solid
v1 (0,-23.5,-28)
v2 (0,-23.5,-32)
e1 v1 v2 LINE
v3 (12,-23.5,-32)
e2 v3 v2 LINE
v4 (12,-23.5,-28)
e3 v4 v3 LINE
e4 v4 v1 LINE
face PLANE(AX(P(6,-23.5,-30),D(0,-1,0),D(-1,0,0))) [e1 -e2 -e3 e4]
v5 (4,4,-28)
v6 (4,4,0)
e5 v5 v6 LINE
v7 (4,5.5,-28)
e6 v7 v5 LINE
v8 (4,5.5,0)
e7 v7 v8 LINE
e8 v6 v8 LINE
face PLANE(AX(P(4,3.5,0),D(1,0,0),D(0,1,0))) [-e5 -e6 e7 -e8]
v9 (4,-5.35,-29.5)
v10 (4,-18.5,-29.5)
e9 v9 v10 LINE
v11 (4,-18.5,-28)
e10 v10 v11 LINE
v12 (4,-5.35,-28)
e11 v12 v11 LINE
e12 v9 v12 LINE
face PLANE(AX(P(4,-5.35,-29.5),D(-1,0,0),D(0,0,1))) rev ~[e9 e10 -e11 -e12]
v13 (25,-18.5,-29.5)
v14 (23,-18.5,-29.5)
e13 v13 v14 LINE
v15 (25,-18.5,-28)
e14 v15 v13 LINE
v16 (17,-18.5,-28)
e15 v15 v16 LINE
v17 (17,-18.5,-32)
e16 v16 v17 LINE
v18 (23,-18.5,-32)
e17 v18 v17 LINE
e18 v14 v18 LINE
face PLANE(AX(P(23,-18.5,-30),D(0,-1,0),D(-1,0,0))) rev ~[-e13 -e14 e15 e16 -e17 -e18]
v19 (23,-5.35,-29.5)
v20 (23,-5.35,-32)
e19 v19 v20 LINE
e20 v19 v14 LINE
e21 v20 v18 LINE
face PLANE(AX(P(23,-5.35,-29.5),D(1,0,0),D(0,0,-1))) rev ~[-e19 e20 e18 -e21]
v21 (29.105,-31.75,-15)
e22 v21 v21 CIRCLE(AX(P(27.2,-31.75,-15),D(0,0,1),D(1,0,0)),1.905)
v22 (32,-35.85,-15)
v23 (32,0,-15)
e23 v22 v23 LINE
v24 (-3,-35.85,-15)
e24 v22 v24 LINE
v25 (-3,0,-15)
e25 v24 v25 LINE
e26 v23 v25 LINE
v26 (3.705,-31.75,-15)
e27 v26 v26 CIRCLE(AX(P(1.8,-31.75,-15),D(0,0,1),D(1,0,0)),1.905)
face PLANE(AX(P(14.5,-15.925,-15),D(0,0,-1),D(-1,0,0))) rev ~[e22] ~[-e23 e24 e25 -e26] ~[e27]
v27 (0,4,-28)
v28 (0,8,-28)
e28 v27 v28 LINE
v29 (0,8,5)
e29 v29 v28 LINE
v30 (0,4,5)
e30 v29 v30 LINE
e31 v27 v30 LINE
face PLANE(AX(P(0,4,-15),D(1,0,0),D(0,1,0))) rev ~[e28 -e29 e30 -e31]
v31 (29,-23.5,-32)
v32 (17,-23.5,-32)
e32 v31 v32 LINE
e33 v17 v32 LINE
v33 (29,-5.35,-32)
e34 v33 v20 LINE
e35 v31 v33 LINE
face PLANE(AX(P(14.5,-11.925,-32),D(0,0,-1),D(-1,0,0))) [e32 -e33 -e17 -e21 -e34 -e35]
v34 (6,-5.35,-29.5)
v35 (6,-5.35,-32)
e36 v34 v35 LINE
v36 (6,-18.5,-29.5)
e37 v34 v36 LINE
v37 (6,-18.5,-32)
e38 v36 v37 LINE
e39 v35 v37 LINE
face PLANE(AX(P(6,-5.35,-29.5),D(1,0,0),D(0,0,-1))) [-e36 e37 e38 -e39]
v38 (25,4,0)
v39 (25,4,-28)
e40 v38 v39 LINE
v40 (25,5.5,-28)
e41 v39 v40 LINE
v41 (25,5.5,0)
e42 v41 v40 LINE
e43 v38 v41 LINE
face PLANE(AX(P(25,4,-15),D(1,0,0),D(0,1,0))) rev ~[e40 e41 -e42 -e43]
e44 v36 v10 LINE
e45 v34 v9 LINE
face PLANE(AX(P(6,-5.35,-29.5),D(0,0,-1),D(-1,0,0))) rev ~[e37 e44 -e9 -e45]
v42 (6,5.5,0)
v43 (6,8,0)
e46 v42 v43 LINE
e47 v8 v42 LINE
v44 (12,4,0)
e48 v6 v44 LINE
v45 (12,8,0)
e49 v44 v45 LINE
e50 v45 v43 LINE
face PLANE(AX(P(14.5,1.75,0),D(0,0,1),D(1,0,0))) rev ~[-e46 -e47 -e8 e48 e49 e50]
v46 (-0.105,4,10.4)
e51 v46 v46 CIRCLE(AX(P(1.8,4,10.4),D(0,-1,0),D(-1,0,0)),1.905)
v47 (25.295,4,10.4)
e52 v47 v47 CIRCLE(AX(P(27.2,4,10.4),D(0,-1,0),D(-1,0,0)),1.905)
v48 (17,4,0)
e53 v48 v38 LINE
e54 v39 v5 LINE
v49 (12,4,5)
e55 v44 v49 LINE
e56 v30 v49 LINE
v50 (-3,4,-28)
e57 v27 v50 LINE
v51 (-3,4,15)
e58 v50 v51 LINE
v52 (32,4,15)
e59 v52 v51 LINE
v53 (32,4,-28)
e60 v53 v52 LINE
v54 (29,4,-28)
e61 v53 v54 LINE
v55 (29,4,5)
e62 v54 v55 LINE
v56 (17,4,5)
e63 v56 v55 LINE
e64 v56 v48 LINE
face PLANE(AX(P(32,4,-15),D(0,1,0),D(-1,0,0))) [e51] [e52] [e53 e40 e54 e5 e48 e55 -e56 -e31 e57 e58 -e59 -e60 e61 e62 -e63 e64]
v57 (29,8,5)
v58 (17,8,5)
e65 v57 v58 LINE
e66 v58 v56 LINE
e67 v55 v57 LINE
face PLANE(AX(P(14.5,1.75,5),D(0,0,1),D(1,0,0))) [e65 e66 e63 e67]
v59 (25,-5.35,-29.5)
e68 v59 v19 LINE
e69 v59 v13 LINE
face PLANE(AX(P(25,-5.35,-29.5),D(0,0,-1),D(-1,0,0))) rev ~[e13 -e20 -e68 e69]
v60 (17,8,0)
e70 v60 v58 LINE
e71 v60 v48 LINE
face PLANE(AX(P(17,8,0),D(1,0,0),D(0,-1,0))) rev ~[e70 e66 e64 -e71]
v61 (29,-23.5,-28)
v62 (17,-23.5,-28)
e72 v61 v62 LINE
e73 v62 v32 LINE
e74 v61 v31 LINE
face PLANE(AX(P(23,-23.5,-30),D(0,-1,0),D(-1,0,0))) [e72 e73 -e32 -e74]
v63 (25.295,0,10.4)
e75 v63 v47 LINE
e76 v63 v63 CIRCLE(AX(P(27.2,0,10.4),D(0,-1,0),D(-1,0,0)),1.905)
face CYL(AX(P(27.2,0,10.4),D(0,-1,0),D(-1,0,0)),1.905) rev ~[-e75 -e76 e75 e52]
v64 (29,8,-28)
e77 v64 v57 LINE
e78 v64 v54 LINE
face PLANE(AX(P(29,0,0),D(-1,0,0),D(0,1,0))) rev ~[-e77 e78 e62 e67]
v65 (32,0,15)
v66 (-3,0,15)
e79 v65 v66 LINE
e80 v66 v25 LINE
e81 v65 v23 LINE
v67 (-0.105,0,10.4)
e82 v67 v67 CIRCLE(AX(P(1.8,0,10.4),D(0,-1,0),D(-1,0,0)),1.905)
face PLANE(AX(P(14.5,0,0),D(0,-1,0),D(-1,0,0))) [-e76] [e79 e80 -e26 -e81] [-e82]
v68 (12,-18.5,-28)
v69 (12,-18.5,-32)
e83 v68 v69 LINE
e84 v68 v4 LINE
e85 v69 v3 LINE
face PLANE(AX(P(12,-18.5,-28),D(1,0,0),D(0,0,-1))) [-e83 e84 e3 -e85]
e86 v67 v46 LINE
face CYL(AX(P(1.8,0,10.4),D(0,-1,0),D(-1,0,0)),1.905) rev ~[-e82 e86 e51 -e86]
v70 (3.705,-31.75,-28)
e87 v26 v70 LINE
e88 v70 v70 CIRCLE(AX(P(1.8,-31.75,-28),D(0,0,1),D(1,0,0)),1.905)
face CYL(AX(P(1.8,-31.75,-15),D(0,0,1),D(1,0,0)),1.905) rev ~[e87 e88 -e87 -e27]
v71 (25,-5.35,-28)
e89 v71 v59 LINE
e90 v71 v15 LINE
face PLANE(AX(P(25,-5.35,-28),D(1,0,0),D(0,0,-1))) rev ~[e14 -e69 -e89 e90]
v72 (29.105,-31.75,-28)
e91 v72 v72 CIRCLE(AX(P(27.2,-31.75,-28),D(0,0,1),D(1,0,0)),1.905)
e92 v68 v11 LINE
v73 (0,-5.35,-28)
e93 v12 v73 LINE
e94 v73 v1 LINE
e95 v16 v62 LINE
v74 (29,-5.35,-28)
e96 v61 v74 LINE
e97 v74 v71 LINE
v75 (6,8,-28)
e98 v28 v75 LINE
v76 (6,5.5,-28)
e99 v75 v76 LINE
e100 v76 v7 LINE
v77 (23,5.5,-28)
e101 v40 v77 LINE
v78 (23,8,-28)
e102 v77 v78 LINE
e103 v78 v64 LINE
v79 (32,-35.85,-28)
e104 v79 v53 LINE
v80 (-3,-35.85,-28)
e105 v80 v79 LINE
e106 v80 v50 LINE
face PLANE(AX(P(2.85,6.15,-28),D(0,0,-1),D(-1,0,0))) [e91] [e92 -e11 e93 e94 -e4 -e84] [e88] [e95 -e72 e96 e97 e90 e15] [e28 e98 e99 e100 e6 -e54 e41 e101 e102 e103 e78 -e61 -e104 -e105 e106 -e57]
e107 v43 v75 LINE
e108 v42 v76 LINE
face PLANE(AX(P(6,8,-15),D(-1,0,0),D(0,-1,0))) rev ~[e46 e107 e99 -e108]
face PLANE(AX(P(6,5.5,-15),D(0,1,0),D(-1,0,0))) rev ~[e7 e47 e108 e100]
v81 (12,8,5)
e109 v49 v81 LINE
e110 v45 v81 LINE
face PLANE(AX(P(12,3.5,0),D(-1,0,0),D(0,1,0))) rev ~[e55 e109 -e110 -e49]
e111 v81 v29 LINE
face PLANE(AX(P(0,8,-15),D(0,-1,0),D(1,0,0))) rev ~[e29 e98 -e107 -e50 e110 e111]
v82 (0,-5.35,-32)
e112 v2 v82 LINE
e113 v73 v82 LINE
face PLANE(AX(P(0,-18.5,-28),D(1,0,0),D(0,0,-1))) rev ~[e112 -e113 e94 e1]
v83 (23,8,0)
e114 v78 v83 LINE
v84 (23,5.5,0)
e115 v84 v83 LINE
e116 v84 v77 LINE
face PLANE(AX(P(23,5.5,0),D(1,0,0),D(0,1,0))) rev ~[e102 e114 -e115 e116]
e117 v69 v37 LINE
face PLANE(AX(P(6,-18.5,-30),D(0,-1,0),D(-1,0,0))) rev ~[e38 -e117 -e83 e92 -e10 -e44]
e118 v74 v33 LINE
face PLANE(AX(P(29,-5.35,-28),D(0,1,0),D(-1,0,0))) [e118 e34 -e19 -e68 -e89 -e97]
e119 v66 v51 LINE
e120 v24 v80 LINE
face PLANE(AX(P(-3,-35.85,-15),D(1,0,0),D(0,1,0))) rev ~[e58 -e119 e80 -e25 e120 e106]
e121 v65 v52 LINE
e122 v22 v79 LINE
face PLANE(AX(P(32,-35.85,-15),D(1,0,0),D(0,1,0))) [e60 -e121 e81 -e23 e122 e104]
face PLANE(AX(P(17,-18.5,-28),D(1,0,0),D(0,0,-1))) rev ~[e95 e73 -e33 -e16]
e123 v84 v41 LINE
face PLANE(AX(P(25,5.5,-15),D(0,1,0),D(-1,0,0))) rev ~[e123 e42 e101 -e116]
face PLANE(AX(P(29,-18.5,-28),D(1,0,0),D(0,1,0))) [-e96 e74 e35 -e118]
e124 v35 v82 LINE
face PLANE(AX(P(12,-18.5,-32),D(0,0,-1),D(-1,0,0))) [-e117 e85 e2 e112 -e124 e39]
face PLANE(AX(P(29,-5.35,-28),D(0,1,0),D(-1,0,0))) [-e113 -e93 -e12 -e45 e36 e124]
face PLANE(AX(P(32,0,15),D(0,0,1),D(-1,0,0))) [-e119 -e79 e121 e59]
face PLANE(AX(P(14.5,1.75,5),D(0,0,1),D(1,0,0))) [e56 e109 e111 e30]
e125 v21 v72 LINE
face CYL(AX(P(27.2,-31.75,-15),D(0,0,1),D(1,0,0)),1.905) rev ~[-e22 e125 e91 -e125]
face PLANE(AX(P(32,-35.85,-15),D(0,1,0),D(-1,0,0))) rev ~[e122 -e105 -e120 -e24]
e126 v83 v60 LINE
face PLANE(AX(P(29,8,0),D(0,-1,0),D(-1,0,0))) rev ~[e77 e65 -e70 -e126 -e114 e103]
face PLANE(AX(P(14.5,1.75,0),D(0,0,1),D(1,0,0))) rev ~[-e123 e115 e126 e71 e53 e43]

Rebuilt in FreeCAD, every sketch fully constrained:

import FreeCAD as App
import Part
import Sketcher

doc = App.newDocument("Part")
body = doc.addObject("PartDesign::Body", "Body")

sketch1 = doc.addObject("Sketcher::SketchObject", "Sketch")
body.addObject(sketch1)
sketch1.AttachmentSupport = (doc.XZ_Plane, [""])
sketch1.MapMode = "FlatFace"
sketch1.addGeometry(Part.LineSegment(App.Vector(0, -15, 0), App.Vector(0, 0, 0)), False)
sketch1.addGeometry(Part.LineSegment(App.Vector(0, 0, 0), App.Vector(29, 0, 0)), False)
sketch1.addGeometry(Part.LineSegment(App.Vector(29, 0, 0), App.Vector(29, -15, 0)), False)
sketch1.addGeometry(Part.LineSegment(App.Vector(29, -15, 0), App.Vector(0, -15, 0)), False)
sketch1.addConstraint(Sketcher.Constraint("Coincident", 0, 2, 1, 1))
sketch1.addConstraint(Sketcher.Constraint("Coincident", 1, 2, 2, 1))
sketch1.addConstraint(Sketcher.Constraint("Coincident", 2, 2, 3, 1))
sketch1.addConstraint(Sketcher.Constraint("Coincident", 3, 2, 0, 1))
sketch1.addConstraint(Sketcher.Constraint("Vertical", 0))
sketch1.addConstraint(Sketcher.Constraint("Horizontal", 1))
sketch1.addConstraint(Sketcher.Constraint("Vertical", 2))
sketch1.addConstraint(Sketcher.Constraint("Horizontal", 3))
sketch1.addConstraint(Sketcher.Constraint("Coincident", 0, 2, -1, 1))
sketch1.addConstraint(Sketcher.Constraint("DistanceX", 1, 1, 1, 2, 29.0))
sketch1.addConstraint(Sketcher.Constraint("DistanceY", 0, 1, 0, 2, 15.0))
pad1 = doc.addObject("PartDesign::Pad", "Pad")
body.addObject(pad1)
pad1.Profile = sketch1
pad1.Length = 8
pad1.Reversed = True

sketch2 = doc.addObject("Sketcher::SketchObject", "Sketch001")
body.addObject(sketch2)
sketch2.AttachmentSupport = (doc.XY_Plane, [""])
sketch2.MapMode = "FlatFace"
sketch2.addGeometry(Part.LineSegment(App.Vector(6, 8, 0), App.Vector(6, 5.5, 0)), False)
sketch2.addGeometry(Part.LineSegment(App.Vector(6, 5.5, 0), App.Vector(4, 5.5, 0)), False)
sketch2.addGeometry(Part.LineSegment(App.Vector(4, 5.5, 0), App.Vector(4, 3.5, 0)), False)
sketch2.addGeometry(Part.LineSegment(App.Vector(4, 3.5, 0), App.Vector(25, 3.5, 0)), False)
sketch2.addGeometry(Part.LineSegment(App.Vector(25, 3.5, 0), App.Vector(25, 5.5, 0)), False)
sketch2.addGeometry(Part.LineSegment(App.Vector(25, 5.5, 0), App.Vector(23, 5.5, 0)), False)
sketch2.addGeometry(Part.LineSegment(App.Vector(23, 5.5, 0), App.Vector(23, 8, 0)), False)
sketch2.addGeometry(Part.LineSegment(App.Vector(23, 8, 0), App.Vector(6, 8, 0)), False)
sketch2.addConstraint(Sketcher.Constraint("Coincident", 0, 2, 1, 1))
sketch2.addConstraint(Sketcher.Constraint("Coincident", 1, 2, 2, 1))
sketch2.addConstraint(Sketcher.Constraint("Coincident", 2, 2, 3, 1))
sketch2.addConstraint(Sketcher.Constraint("Coincident", 3, 2, 4, 1))
sketch2.addConstraint(Sketcher.Constraint("Coincident", 4, 2, 5, 1))
sketch2.addConstraint(Sketcher.Constraint("Coincident", 5, 2, 6, 1))
sketch2.addConstraint(Sketcher.Constraint("Coincident", 6, 2, 7, 1))
sketch2.addConstraint(Sketcher.Constraint("Coincident", 7, 2, 0, 1))
sketch2.addConstraint(Sketcher.Constraint("Vertical", 0))
sketch2.addConstraint(Sketcher.Constraint("Horizontal", 1))
sketch2.addConstraint(Sketcher.Constraint("Vertical", 2))
sketch2.addConstraint(Sketcher.Constraint("Horizontal", 3))
sketch2.addConstraint(Sketcher.Constraint("Vertical", 4))
sketch2.addConstraint(Sketcher.Constraint("Horizontal", 5))
sketch2.addConstraint(Sketcher.Constraint("Vertical", 6))
sketch2.addConstraint(Sketcher.Constraint("Horizontal", 7))
sketch2.addConstraint(Sketcher.Constraint("Horizontal", 1, 2, 4, 2))
sketch2.addConstraint(Sketcher.Constraint("Equal", 1, 5))
sketch2.addConstraint(Sketcher.Constraint("Equal", 5, 2))
sketch2.addConstraint(Sketcher.Constraint("DistanceX", 1, 2, 1, 1, 2.0))
sketch2.addConstraint(Sketcher.Constraint("DistanceX", 3, 1, 3, 2, 21.0))
sketch2.addConstraint(Sketcher.Constraint("DistanceY", 0, 2, 0, 1, 2.5))
sketch2.addConstraint(Sketcher.Constraint("DistanceX", -1, 1, 0, 2, 6.0))
sketch2.addConstraint(Sketcher.Constraint("DistanceY", -1, 1, 6, 2, 8.0))
pocket1 = doc.addObject("PartDesign::Pocket", "Pocket")
body.addObject(pocket1)
pocket1.Profile = sketch2
pocket1.Type = "ThroughAll"
pocket1.Midplane = True

sketch3 = doc.addObject("Sketcher::SketchObject", "Sketch002")
body.addObject(sketch3)
sketch3.AttachmentSupport = (doc.XY_Plane, [""])
sketch3.MapMode = "FlatFace"
sketch3.addGeometry(Part.LineSegment(App.Vector(29, 0, 0), App.Vector(29, 8, 0)), False)
sketch3.addGeometry(Part.LineSegment(App.Vector(29, 8, 0), App.Vector(17, 8, 0)), False)
sketch3.addGeometry(Part.LineSegment(App.Vector(17, 8, 0), App.Vector(17, 3.5, 0)), False)
sketch3.addGeometry(Part.LineSegment(App.Vector(17, 3.5, 0), App.Vector(12, 3.5, 0)), False)
sketch3.addGeometry(Part.LineSegment(App.Vector(12, 3.5, 0), App.Vector(12, 8, 0)), False)
sketch3.addGeometry(Part.LineSegment(App.Vector(12, 8, 0), App.Vector(0, 8, 0)), False)
sketch3.addGeometry(Part.LineSegment(App.Vector(0, 8, 0), App.Vector(0, 0, 0)), False)
sketch3.addGeometry(Part.LineSegment(App.Vector(0, 0, 0), App.Vector(29, 0, 0)), False)
sketch3.addConstraint(Sketcher.Constraint("Coincident", 0, 2, 1, 1))
sketch3.addConstraint(Sketcher.Constraint("Coincident", 1, 2, 2, 1))
sketch3.addConstraint(Sketcher.Constraint("Coincident", 2, 2, 3, 1))
sketch3.addConstraint(Sketcher.Constraint("Coincident", 3, 2, 4, 1))
sketch3.addConstraint(Sketcher.Constraint("Coincident", 4, 2, 5, 1))
sketch3.addConstraint(Sketcher.Constraint("Coincident", 5, 2, 6, 1))
sketch3.addConstraint(Sketcher.Constraint("Coincident", 6, 2, 7, 1))
sketch3.addConstraint(Sketcher.Constraint("Coincident", 7, 2, 0, 1))
sketch3.addConstraint(Sketcher.Constraint("Vertical", 0))
sketch3.addConstraint(Sketcher.Constraint("Horizontal", 1))
sketch3.addConstraint(Sketcher.Constraint("Vertical", 2))
sketch3.addConstraint(Sketcher.Constraint("Horizontal", 3))
sketch3.addConstraint(Sketcher.Constraint("Vertical", 4))
sketch3.addConstraint(Sketcher.Constraint("Horizontal", 5))
sketch3.addConstraint(Sketcher.Constraint("Vertical", 6))
sketch3.addConstraint(Sketcher.Constraint("Horizontal", 7))
sketch3.addConstraint(Sketcher.Constraint("Coincident", 6, 2, -1, 1))
sketch3.addConstraint(Sketcher.Constraint("Horizontal", 1, 2, 4, 2))
sketch3.addConstraint(Sketcher.Constraint("Equal", 1, 5))
sketch3.addConstraint(Sketcher.Constraint("DistanceX", 1, 2, 1, 1, 12.0))
sketch3.addConstraint(Sketcher.Constraint("DistanceX", 3, 2, 3, 1, 5.0))
sketch3.addConstraint(Sketcher.Constraint("DistanceY", 0, 1, 0, 2, 8.0))
sketch3.addConstraint(Sketcher.Constraint("DistanceY", 2, 2, 2, 1, 4.5))
pad2 = doc.addObject("PartDesign::Pad", "Pad001")
body.addObject(pad2)
pad2.Profile = sketch3
pad2.Length = 5

sketch4 = doc.addObject("Sketcher::SketchObject", "Sketch003")
body.addObject(sketch4)
sketch4.AttachmentSupport = (doc.XZ_Plane, [""])
sketch4.MapMode = "FlatFace"
sketch4.addGeometry(Part.LineSegment(App.Vector(32, -15, 0), App.Vector(32, 15, 0)), False)
sketch4.addGeometry(Part.LineSegment(App.Vector(32, 15, 0), App.Vector(-3, 15, 0)), False)
sketch4.addGeometry(Part.LineSegment(App.Vector(-3, 15, 0), App.Vector(-3, -15, 0)), False)
sketch4.addGeometry(Part.LineSegment(App.Vector(-3, -15, 0), App.Vector(32, -15, 0)), False)
sketch4.addConstraint(Sketcher.Constraint("Coincident", 0, 2, 1, 1))
sketch4.addConstraint(Sketcher.Constraint("Coincident", 1, 2, 2, 1))
sketch4.addConstraint(Sketcher.Constraint("Coincident", 2, 2, 3, 1))
sketch4.addConstraint(Sketcher.Constraint("Coincident", 3, 2, 0, 1))
sketch4.addConstraint(Sketcher.Constraint("Vertical", 0))
sketch4.addConstraint(Sketcher.Constraint("Horizontal", 1))
sketch4.addConstraint(Sketcher.Constraint("Vertical", 2))
sketch4.addConstraint(Sketcher.Constraint("Horizontal", 3))
sketch4.addConstraint(Sketcher.Constraint("DistanceX", 1, 2, 1, 1, 35.0))
sketch4.addConstraint(Sketcher.Constraint("DistanceY", 0, 1, 0, 2, 30.0))
sketch4.addConstraint(Sketcher.Constraint("DistanceX", -1, 1, 0, 2, 32.0))
sketch4.addConstraint(Sketcher.Constraint("DistanceY", -1, 1, 0, 2, 15.0))
pad3 = doc.addObject("PartDesign::Pad", "Pad002")
body.addObject(pad3)
pad3.Profile = sketch4
pad3.Length = 4
pad3.Reversed = True

sketch5 = doc.addObject("Sketcher::SketchObject", "Sketch004")
body.addObject(sketch5)
sketch5.AttachmentSupport = (doc.XZ_Plane, [""])
sketch5.MapMode = "FlatFace"
sketch5.addGeometry(Part.Circle(App.Vector(27.2, 10.4, 0), App.Vector(0, 0, 1), 1.9), False)
sketch5.addGeometry(Part.Circle(App.Vector(1.8, 10.4, 0), App.Vector(0, 0, 1), 1.9), False)
sketch5.addConstraint(Sketcher.Constraint("Equal", 0, 1))
sketch5.addConstraint(Sketcher.Constraint("Horizontal", 0, 3, 1, 3))
sketch5.addConstraint(Sketcher.Constraint("Diameter", 0, 3.81))
sketch5.addConstraint(Sketcher.Constraint("DistanceX", -1, 1, 0, 3, 27.2))
sketch5.addConstraint(Sketcher.Constraint("DistanceY", -1, 1, 0, 3, 10.4))
sketch5.addConstraint(Sketcher.Constraint("DistanceX", -1, 1, 1, 3, 1.8))
pocket2 = doc.addObject("PartDesign::Pocket", "Pocket001")
body.addObject(pocket2)
pocket2.Profile = sketch5
pocket2.Type = "ThroughAll"
pocket2.Midplane = True

sketch6 = doc.addObject("Sketcher::SketchObject", "Sketch005")
body.addObject(sketch6)
sketch6.AttachmentSupport = (doc.XY_Plane, [""])
sketch6.MapMode = "FlatFace"
sketch6.AttachmentOffset = App.Placement(App.Vector(0, 0, -15), App.Rotation())
sketch6.addGeometry(Part.LineSegment(App.Vector(32, 4, 0), App.Vector(32, -36, 0)), False)
sketch6.addGeometry(Part.LineSegment(App.Vector(32, -36, 0), App.Vector(-3, -36, 0)), False)
sketch6.addGeometry(Part.LineSegment(App.Vector(-3, -36, 0), App.Vector(-3, 4, 0)), False)
sketch6.addGeometry(Part.LineSegment(App.Vector(-3, 4, 0), App.Vector(32, 4, 0)), False)
sketch6.addConstraint(Sketcher.Constraint("Coincident", 0, 2, 1, 1))
sketch6.addConstraint(Sketcher.Constraint("Coincident", 1, 2, 2, 1))
sketch6.addConstraint(Sketcher.Constraint("Coincident", 2, 2, 3, 1))
sketch6.addConstraint(Sketcher.Constraint("Coincident", 3, 2, 0, 1))
sketch6.addConstraint(Sketcher.Constraint("Vertical", 0))
sketch6.addConstraint(Sketcher.Constraint("Horizontal", 1))
sketch6.addConstraint(Sketcher.Constraint("Vertical", 2))
sketch6.addConstraint(Sketcher.Constraint("Horizontal", 3))
sketch6.addConstraint(Sketcher.Constraint("DistanceX", 1, 2, 1, 1, 35.0))
sketch6.addConstraint(Sketcher.Constraint("DistanceX", -1, 1, 0, 2, 32.0))
sketch6.addConstraint(Sketcher.Constraint("DistanceY", -1, 1, 2, 2, 4.0))
sketch6.addConstraint(Sketcher.Constraint("DistanceY", 0, 2, 0, 1, 39.85))
pad4 = doc.addObject("PartDesign::Pad", "Pad003")
body.addObject(pad4)
pad4.Profile = sketch6
pad4.Length = 13
pad4.Reversed = True

sketch7 = doc.addObject("Sketcher::SketchObject", "Sketch006")
body.addObject(sketch7)
sketch7.AttachmentSupport = (doc.XY_Plane, [""])
sketch7.MapMode = "FlatFace"
sketch7.AttachmentOffset = App.Placement(App.Vector(0, 0, -15), App.Rotation())
sketch7.addGeometry(Part.Circle(App.Vector(1.8, -31.8, 0), App.Vector(0, 0, 1), 1.9), False)
sketch7.addGeometry(Part.Circle(App.Vector(27.2, -31.8, 0), App.Vector(0, 0, 1), 1.9), False)
sketch7.addConstraint(Sketcher.Constraint("Equal", 0, 1))
sketch7.addConstraint(Sketcher.Constraint("Horizontal", 0, 3, 1, 3))
sketch7.addConstraint(Sketcher.Constraint("Diameter", 0, 3.81))
sketch7.addConstraint(Sketcher.Constraint("DistanceX", -1, 1, 0, 3, 1.8))
sketch7.addConstraint(Sketcher.Constraint("DistanceX", -1, 1, 1, 3, 27.2))
sketch7.addConstraint(Sketcher.Constraint("DistanceY", 0, 3, -1, 1, 31.75))
pocket3 = doc.addObject("PartDesign::Pocket", "Pocket002")
body.addObject(pocket3)
pocket3.Profile = sketch7
pocket3.Length = 13

sketch8 = doc.addObject("Sketcher::SketchObject", "Sketch007")
body.addObject(sketch8)
sketch8.AttachmentSupport = (doc.XY_Plane, [""])
sketch8.MapMode = "FlatFace"
sketch8.AttachmentOffset = App.Placement(App.Vector(0, 0, -28), App.Rotation())
sketch8.addGeometry(Part.LineSegment(App.Vector(29, -5, 0), App.Vector(29, -18, 0)), False)
sketch8.addGeometry(Part.LineSegment(App.Vector(29, -18, 0), App.Vector(0, -18, 0)), False)
sketch8.addGeometry(Part.LineSegment(App.Vector(0, -18, 0), App.Vector(0, -5, 0)), False)
sketch8.addGeometry(Part.LineSegment(App.Vector(0, -5, 0), App.Vector(29, -5, 0)), False)
sketch8.addConstraint(Sketcher.Constraint("Coincident", 0, 2, 1, 1))
sketch8.addConstraint(Sketcher.Constraint("Coincident", 1, 2, 2, 1))
sketch8.addConstraint(Sketcher.Constraint("Coincident", 2, 2, 3, 1))
sketch8.addConstraint(Sketcher.Constraint("Coincident", 3, 2, 0, 1))
sketch8.addConstraint(Sketcher.Constraint("Vertical", 0))
sketch8.addConstraint(Sketcher.Constraint("Horizontal", 1))
sketch8.addConstraint(Sketcher.Constraint("Vertical", 2))
sketch8.addConstraint(Sketcher.Constraint("Horizontal", 3))
sketch8.addConstraint(Sketcher.Constraint("PointOnObject", 1, 2, -2))
sketch8.addConstraint(Sketcher.Constraint("DistanceX", 1, 2, 1, 1, 29.0))
sketch8.addConstraint(Sketcher.Constraint("DistanceY", 0, 2, 0, 1, 13.15))
sketch8.addConstraint(Sketcher.Constraint("DistanceY", 0, 2, -1, 1, 18.5))
pad5 = doc.addObject("PartDesign::Pad", "Pad004")
body.addObject(pad5)
pad5.Profile = sketch8
pad5.Length = 4
pad5.Reversed = True

sketch9 = doc.addObject("Sketcher::SketchObject", "Sketch008")
body.addObject(sketch9)
sketch9.AttachmentSupport = (doc.XZ_Plane, [""])
sketch9.MapMode = "FlatFace"
sketch9.AttachmentOffset = App.Placement(App.Vector(0, 0, 5.35), App.Rotation())
sketch9.addGeometry(Part.LineSegment(App.Vector(4, -29.5, 0), App.Vector(4, -28, 0)), False)
sketch9.addGeometry(Part.LineSegment(App.Vector(4, -28, 0), App.Vector(25, -28, 0)), False)
sketch9.addGeometry(Part.LineSegment(App.Vector(25, -28, 0), App.Vector(25, -29.5, 0)), False)
sketch9.addGeometry(Part.LineSegment(App.Vector(25, -29.5, 0), App.Vector(23, -29.5, 0)), False)
sketch9.addGeometry(Part.LineSegment(App.Vector(23, -29.5, 0), App.Vector(23, -32, 0)), False)
sketch9.addGeometry(Part.LineSegment(App.Vector(23, -32, 0), App.Vector(6, -32, 0)), False)
sketch9.addGeometry(Part.LineSegment(App.Vector(6, -32, 0), App.Vector(6, -29.5, 0)), False)
sketch9.addGeometry(Part.LineSegment(App.Vector(6, -29.5, 0), App.Vector(4, -29.5, 0)), False)
sketch9.addConstraint(Sketcher.Constraint("Coincident", 0, 2, 1, 1))
sketch9.addConstraint(Sketcher.Constraint("Coincident", 1, 2, 2, 1))
sketch9.addConstraint(Sketcher.Constraint("Coincident", 2, 2, 3, 1))
sketch9.addConstraint(Sketcher.Constraint("Coincident", 3, 2, 4, 1))
sketch9.addConstraint(Sketcher.Constraint("Coincident", 4, 2, 5, 1))
sketch9.addConstraint(Sketcher.Constraint("Coincident", 5, 2, 6, 1))
sketch9.addConstraint(Sketcher.Constraint("Coincident", 6, 2, 7, 1))
sketch9.addConstraint(Sketcher.Constraint("Coincident", 7, 2, 0, 1))
sketch9.addConstraint(Sketcher.Constraint("Vertical", 0))
sketch9.addConstraint(Sketcher.Constraint("Horizontal", 1))
sketch9.addConstraint(Sketcher.Constraint("Vertical", 2))
sketch9.addConstraint(Sketcher.Constraint("Horizontal", 3))
sketch9.addConstraint(Sketcher.Constraint("Vertical", 4))
sketch9.addConstraint(Sketcher.Constraint("Horizontal", 5))
sketch9.addConstraint(Sketcher.Constraint("Vertical", 6))
sketch9.addConstraint(Sketcher.Constraint("Horizontal", 7))
sketch9.addConstraint(Sketcher.Constraint("Horizontal", 3, 2, 6, 2))
sketch9.addConstraint(Sketcher.Constraint("Equal", 3, 7))
sketch9.addConstraint(Sketcher.Constraint("DistanceX", 1, 1, 1, 2, 21.0))
sketch9.addConstraint(Sketcher.Constraint("DistanceX", 3, 2, 3, 1, 2.0))
sketch9.addConstraint(Sketcher.Constraint("DistanceY", 0, 1, 0, 2, 1.5))
sketch9.addConstraint(Sketcher.Constraint("DistanceY", 4, 2, 4, 1, 2.5))
sketch9.addConstraint(Sketcher.Constraint("DistanceX", -1, 1, 0, 2, 4.0))
sketch9.addConstraint(Sketcher.Constraint("DistanceY", 0, 2, -1, 1, 28.0))
pocket4 = doc.addObject("PartDesign::Pocket", "Pocket003")
body.addObject(pocket4)
pocket4.Profile = sketch9
pocket4.Type = "ThroughAll"
pocket4.Reversed = True

sketch10 = doc.addObject("Sketcher::SketchObject", "Sketch009")
body.addObject(sketch10)
sketch10.AttachmentSupport = (doc.XZ_Plane, [""])
sketch10.MapMode = "FlatFace"
sketch10.AttachmentOffset = App.Placement(App.Vector(0, 0, 18.5), App.Rotation())
sketch10.addGeometry(Part.LineSegment(App.Vector(12, -32, 0), App.Vector(12, -28, 0)), False)
sketch10.addGeometry(Part.LineSegment(App.Vector(12, -28, 0), App.Vector(0, -28, 0)), False)
sketch10.addGeometry(Part.LineSegment(App.Vector(0, -28, 0), App.Vector(0, -32, 0)), False)
sketch10.addGeometry(Part.LineSegment(App.Vector(0, -32, 0), App.Vector(12, -32, 0)), False)
sketch10.addGeometry(Part.LineSegment(App.Vector(29, -32, 0), App.Vector(29, -28, 0)), False)
sketch10.addGeometry(Part.LineSegment(App.Vector(29, -28, 0), App.Vector(17, -28, 0)), False)
sketch10.addGeometry(Part.LineSegment(App.Vector(17, -28, 0), App.Vector(17, -32, 0)), False)
sketch10.addGeometry(Part.LineSegment(App.Vector(17, -32, 0), App.Vector(29, -32, 0)), False)
sketch10.addConstraint(Sketcher.Constraint("Coincident", 0, 2, 1, 1))
sketch10.addConstraint(Sketcher.Constraint("Coincident", 1, 2, 2, 1))
sketch10.addConstraint(Sketcher.Constraint("Coincident", 2, 2, 3, 1))
sketch10.addConstraint(Sketcher.Constraint("Coincident", 3, 2, 0, 1))
sketch10.addConstraint(Sketcher.Constraint("Coincident", 4, 2, 5, 1))
sketch10.addConstraint(Sketcher.Constraint("Coincident", 5, 2, 6, 1))
sketch10.addConstraint(Sketcher.Constraint("Coincident", 6, 2, 7, 1))
sketch10.addConstraint(Sketcher.Constraint("Coincident", 7, 2, 4, 1))
sketch10.addConstraint(Sketcher.Constraint("Vertical", 0))
sketch10.addConstraint(Sketcher.Constraint("Horizontal", 1))
sketch10.addConstraint(Sketcher.Constraint("Vertical", 2))
sketch10.addConstraint(Sketcher.Constraint("Horizontal", 3))
sketch10.addConstraint(Sketcher.Constraint("Vertical", 4))
sketch10.addConstraint(Sketcher.Constraint("Horizontal", 5))
sketch10.addConstraint(Sketcher.Constraint("Vertical", 6))
sketch10.addConstraint(Sketcher.Constraint("Horizontal", 7))
sketch10.addConstraint(Sketcher.Constraint("PointOnObject", 1, 2, -2))
sketch10.addConstraint(Sketcher.Constraint("Horizontal", 1, 2, 4, 2))
sketch10.addConstraint(Sketcher.Constraint("Horizontal", 3, 2, 6, 2))
sketch10.addConstraint(Sketcher.Constraint("Equal", 3, 5))
sketch10.addConstraint(Sketcher.Constraint("DistanceX", 1, 2, 1, 1, 12.0))
sketch10.addConstraint(Sketcher.Constraint("DistanceY", 0, 1, 0, 2, 4.0))
sketch10.addConstraint(Sketcher.Constraint("DistanceY", 0, 2, -1, 1, 28.0))
sketch10.addConstraint(Sketcher.Constraint("DistanceX", -1, 1, 4, 2, 29.0))
pad6 = doc.addObject("PartDesign::Pad", "Pad005")
body.addObject(pad6)
pad6.Profile = sketch10
pad6.Length = 5

sketch11 = doc.addObject("Sketcher::SketchObject", "Sketch010")
body.addObject(sketch11)
sketch11.AttachmentSupport = (doc.XY_Plane, [""])
sketch11.MapMode = "FlatFace"
sketch11.AttachmentOffset = App.Placement(App.Vector(0, 0, -15), App.Rotation())
sketch11.addGeometry(Part.LineSegment(App.Vector(0, 4, 0), App.Vector(0, 8, 0)), False)
sketch11.addGeometry(Part.LineSegment(App.Vector(0, 8, 0), App.Vector(6, 8, 0)), False)
sketch11.addGeometry(Part.LineSegment(App.Vector(6, 8, 0), App.Vector(6, 5.5, 0)), False)
sketch11.addGeometry(Part.LineSegment(App.Vector(6, 5.5, 0), App.Vector(4, 5.5, 0)), False)
sketch11.addGeometry(Part.LineSegment(App.Vector(4, 5.5, 0), App.Vector(4, 4, 0)), False)
sketch11.addGeometry(Part.LineSegment(App.Vector(4, 4, 0), App.Vector(0, 4, 0)), False)
sketch11.addGeometry(Part.LineSegment(App.Vector(23, 5.5, 0), App.Vector(23, 8, 0)), False)
sketch11.addGeometry(Part.LineSegment(App.Vector(23, 8, 0), App.Vector(29, 8, 0)), False)
sketch11.addGeometry(Part.LineSegment(App.Vector(29, 8, 0), App.Vector(29, 4, 0)), False)
sketch11.addGeometry(Part.LineSegment(App.Vector(29, 4, 0), App.Vector(25, 4, 0)), False)
sketch11.addGeometry(Part.LineSegment(App.Vector(25, 4, 0), App.Vector(25, 5.5, 0)), False)
sketch11.addGeometry(Part.LineSegment(App.Vector(25, 5.5, 0), App.Vector(23, 5.5, 0)), False)
sketch11.addConstraint(Sketcher.Constraint("Coincident", 0, 2, 1, 1))
sketch11.addConstraint(Sketcher.Constraint("Coincident", 1, 2, 2, 1))
sketch11.addConstraint(Sketcher.Constraint("Coincident", 2, 2, 3, 1))
sketch11.addConstraint(Sketcher.Constraint("Coincident", 3, 2, 4, 1))
sketch11.addConstraint(Sketcher.Constraint("Coincident", 4, 2, 5, 1))
sketch11.addConstraint(Sketcher.Constraint("Coincident", 5, 2, 0, 1))
sketch11.addConstraint(Sketcher.Constraint("Coincident", 6, 2, 7, 1))
sketch11.addConstraint(Sketcher.Constraint("Coincident", 7, 2, 8, 1))
sketch11.addConstraint(Sketcher.Constraint("Coincident", 8, 2, 9, 1))
sketch11.addConstraint(Sketcher.Constraint("Coincident", 9, 2, 10, 1))
sketch11.addConstraint(Sketcher.Constraint("Coincident", 10, 2, 11, 1))
sketch11.addConstraint(Sketcher.Constraint("Coincident", 11, 2, 6, 1))
sketch11.addConstraint(Sketcher.Constraint("Vertical", 0))
sketch11.addConstraint(Sketcher.Constraint("Horizontal", 1))
sketch11.addConstraint(Sketcher.Constraint("Vertical", 2))
sketch11.addConstraint(Sketcher.Constraint("Horizontal", 3))
sketch11.addConstraint(Sketcher.Constraint("Vertical", 4))
sketch11.addConstraint(Sketcher.Constraint("Horizontal", 5))
sketch11.addConstraint(Sketcher.Constraint("Vertical", 6))
sketch11.addConstraint(Sketcher.Constraint("Horizontal", 7))
sketch11.addConstraint(Sketcher.Constraint("Vertical", 8))
sketch11.addConstraint(Sketcher.Constraint("Horizontal", 9))
sketch11.addConstraint(Sketcher.Constraint("Vertical", 10))
sketch11.addConstraint(Sketcher.Constraint("Horizontal", 11))
sketch11.addConstraint(Sketcher.Constraint("PointOnObject", 0, 2, -2))
sketch11.addConstraint(Sketcher.Constraint("Horizontal", 1, 2, 6, 2))
sketch11.addConstraint(Sketcher.Constraint("Horizontal", 5, 2, 8, 2))
sketch11.addConstraint(Sketcher.Constraint("Horizontal", 3, 2, 10, 2))
sketch11.addConstraint(Sketcher.Constraint("Equal", 1, 7))
sketch11.addConstraint(Sketcher.Constraint("Equal", 5, 9))
sketch11.addConstraint(Sketcher.Constraint("Equal", 9, 0))
sketch11.addConstraint(Sketcher.Constraint("DistanceX", 1, 1, 1, 2, 6.0))
sketch11.addConstraint(Sketcher.Constraint("DistanceX", 3, 2, 3, 1, 2.0))
sketch11.addConstraint(Sketcher.Constraint("DistanceY", 2, 2, 2, 1, 2.5))
sketch11.addConstraint(Sketcher.Constraint("DistanceY", -1, 1, 0, 2, 8.0))
sketch11.addConstraint(Sketcher.Constraint("DistanceX", -1, 1, 6, 2, 23.0))
pad7 = doc.addObject("PartDesign::Pad", "Pad006")
body.addObject(pad7)
pad7.Profile = sketch11
pad7.Length = 13
pad7.Reversed = True

doc.recompute()
